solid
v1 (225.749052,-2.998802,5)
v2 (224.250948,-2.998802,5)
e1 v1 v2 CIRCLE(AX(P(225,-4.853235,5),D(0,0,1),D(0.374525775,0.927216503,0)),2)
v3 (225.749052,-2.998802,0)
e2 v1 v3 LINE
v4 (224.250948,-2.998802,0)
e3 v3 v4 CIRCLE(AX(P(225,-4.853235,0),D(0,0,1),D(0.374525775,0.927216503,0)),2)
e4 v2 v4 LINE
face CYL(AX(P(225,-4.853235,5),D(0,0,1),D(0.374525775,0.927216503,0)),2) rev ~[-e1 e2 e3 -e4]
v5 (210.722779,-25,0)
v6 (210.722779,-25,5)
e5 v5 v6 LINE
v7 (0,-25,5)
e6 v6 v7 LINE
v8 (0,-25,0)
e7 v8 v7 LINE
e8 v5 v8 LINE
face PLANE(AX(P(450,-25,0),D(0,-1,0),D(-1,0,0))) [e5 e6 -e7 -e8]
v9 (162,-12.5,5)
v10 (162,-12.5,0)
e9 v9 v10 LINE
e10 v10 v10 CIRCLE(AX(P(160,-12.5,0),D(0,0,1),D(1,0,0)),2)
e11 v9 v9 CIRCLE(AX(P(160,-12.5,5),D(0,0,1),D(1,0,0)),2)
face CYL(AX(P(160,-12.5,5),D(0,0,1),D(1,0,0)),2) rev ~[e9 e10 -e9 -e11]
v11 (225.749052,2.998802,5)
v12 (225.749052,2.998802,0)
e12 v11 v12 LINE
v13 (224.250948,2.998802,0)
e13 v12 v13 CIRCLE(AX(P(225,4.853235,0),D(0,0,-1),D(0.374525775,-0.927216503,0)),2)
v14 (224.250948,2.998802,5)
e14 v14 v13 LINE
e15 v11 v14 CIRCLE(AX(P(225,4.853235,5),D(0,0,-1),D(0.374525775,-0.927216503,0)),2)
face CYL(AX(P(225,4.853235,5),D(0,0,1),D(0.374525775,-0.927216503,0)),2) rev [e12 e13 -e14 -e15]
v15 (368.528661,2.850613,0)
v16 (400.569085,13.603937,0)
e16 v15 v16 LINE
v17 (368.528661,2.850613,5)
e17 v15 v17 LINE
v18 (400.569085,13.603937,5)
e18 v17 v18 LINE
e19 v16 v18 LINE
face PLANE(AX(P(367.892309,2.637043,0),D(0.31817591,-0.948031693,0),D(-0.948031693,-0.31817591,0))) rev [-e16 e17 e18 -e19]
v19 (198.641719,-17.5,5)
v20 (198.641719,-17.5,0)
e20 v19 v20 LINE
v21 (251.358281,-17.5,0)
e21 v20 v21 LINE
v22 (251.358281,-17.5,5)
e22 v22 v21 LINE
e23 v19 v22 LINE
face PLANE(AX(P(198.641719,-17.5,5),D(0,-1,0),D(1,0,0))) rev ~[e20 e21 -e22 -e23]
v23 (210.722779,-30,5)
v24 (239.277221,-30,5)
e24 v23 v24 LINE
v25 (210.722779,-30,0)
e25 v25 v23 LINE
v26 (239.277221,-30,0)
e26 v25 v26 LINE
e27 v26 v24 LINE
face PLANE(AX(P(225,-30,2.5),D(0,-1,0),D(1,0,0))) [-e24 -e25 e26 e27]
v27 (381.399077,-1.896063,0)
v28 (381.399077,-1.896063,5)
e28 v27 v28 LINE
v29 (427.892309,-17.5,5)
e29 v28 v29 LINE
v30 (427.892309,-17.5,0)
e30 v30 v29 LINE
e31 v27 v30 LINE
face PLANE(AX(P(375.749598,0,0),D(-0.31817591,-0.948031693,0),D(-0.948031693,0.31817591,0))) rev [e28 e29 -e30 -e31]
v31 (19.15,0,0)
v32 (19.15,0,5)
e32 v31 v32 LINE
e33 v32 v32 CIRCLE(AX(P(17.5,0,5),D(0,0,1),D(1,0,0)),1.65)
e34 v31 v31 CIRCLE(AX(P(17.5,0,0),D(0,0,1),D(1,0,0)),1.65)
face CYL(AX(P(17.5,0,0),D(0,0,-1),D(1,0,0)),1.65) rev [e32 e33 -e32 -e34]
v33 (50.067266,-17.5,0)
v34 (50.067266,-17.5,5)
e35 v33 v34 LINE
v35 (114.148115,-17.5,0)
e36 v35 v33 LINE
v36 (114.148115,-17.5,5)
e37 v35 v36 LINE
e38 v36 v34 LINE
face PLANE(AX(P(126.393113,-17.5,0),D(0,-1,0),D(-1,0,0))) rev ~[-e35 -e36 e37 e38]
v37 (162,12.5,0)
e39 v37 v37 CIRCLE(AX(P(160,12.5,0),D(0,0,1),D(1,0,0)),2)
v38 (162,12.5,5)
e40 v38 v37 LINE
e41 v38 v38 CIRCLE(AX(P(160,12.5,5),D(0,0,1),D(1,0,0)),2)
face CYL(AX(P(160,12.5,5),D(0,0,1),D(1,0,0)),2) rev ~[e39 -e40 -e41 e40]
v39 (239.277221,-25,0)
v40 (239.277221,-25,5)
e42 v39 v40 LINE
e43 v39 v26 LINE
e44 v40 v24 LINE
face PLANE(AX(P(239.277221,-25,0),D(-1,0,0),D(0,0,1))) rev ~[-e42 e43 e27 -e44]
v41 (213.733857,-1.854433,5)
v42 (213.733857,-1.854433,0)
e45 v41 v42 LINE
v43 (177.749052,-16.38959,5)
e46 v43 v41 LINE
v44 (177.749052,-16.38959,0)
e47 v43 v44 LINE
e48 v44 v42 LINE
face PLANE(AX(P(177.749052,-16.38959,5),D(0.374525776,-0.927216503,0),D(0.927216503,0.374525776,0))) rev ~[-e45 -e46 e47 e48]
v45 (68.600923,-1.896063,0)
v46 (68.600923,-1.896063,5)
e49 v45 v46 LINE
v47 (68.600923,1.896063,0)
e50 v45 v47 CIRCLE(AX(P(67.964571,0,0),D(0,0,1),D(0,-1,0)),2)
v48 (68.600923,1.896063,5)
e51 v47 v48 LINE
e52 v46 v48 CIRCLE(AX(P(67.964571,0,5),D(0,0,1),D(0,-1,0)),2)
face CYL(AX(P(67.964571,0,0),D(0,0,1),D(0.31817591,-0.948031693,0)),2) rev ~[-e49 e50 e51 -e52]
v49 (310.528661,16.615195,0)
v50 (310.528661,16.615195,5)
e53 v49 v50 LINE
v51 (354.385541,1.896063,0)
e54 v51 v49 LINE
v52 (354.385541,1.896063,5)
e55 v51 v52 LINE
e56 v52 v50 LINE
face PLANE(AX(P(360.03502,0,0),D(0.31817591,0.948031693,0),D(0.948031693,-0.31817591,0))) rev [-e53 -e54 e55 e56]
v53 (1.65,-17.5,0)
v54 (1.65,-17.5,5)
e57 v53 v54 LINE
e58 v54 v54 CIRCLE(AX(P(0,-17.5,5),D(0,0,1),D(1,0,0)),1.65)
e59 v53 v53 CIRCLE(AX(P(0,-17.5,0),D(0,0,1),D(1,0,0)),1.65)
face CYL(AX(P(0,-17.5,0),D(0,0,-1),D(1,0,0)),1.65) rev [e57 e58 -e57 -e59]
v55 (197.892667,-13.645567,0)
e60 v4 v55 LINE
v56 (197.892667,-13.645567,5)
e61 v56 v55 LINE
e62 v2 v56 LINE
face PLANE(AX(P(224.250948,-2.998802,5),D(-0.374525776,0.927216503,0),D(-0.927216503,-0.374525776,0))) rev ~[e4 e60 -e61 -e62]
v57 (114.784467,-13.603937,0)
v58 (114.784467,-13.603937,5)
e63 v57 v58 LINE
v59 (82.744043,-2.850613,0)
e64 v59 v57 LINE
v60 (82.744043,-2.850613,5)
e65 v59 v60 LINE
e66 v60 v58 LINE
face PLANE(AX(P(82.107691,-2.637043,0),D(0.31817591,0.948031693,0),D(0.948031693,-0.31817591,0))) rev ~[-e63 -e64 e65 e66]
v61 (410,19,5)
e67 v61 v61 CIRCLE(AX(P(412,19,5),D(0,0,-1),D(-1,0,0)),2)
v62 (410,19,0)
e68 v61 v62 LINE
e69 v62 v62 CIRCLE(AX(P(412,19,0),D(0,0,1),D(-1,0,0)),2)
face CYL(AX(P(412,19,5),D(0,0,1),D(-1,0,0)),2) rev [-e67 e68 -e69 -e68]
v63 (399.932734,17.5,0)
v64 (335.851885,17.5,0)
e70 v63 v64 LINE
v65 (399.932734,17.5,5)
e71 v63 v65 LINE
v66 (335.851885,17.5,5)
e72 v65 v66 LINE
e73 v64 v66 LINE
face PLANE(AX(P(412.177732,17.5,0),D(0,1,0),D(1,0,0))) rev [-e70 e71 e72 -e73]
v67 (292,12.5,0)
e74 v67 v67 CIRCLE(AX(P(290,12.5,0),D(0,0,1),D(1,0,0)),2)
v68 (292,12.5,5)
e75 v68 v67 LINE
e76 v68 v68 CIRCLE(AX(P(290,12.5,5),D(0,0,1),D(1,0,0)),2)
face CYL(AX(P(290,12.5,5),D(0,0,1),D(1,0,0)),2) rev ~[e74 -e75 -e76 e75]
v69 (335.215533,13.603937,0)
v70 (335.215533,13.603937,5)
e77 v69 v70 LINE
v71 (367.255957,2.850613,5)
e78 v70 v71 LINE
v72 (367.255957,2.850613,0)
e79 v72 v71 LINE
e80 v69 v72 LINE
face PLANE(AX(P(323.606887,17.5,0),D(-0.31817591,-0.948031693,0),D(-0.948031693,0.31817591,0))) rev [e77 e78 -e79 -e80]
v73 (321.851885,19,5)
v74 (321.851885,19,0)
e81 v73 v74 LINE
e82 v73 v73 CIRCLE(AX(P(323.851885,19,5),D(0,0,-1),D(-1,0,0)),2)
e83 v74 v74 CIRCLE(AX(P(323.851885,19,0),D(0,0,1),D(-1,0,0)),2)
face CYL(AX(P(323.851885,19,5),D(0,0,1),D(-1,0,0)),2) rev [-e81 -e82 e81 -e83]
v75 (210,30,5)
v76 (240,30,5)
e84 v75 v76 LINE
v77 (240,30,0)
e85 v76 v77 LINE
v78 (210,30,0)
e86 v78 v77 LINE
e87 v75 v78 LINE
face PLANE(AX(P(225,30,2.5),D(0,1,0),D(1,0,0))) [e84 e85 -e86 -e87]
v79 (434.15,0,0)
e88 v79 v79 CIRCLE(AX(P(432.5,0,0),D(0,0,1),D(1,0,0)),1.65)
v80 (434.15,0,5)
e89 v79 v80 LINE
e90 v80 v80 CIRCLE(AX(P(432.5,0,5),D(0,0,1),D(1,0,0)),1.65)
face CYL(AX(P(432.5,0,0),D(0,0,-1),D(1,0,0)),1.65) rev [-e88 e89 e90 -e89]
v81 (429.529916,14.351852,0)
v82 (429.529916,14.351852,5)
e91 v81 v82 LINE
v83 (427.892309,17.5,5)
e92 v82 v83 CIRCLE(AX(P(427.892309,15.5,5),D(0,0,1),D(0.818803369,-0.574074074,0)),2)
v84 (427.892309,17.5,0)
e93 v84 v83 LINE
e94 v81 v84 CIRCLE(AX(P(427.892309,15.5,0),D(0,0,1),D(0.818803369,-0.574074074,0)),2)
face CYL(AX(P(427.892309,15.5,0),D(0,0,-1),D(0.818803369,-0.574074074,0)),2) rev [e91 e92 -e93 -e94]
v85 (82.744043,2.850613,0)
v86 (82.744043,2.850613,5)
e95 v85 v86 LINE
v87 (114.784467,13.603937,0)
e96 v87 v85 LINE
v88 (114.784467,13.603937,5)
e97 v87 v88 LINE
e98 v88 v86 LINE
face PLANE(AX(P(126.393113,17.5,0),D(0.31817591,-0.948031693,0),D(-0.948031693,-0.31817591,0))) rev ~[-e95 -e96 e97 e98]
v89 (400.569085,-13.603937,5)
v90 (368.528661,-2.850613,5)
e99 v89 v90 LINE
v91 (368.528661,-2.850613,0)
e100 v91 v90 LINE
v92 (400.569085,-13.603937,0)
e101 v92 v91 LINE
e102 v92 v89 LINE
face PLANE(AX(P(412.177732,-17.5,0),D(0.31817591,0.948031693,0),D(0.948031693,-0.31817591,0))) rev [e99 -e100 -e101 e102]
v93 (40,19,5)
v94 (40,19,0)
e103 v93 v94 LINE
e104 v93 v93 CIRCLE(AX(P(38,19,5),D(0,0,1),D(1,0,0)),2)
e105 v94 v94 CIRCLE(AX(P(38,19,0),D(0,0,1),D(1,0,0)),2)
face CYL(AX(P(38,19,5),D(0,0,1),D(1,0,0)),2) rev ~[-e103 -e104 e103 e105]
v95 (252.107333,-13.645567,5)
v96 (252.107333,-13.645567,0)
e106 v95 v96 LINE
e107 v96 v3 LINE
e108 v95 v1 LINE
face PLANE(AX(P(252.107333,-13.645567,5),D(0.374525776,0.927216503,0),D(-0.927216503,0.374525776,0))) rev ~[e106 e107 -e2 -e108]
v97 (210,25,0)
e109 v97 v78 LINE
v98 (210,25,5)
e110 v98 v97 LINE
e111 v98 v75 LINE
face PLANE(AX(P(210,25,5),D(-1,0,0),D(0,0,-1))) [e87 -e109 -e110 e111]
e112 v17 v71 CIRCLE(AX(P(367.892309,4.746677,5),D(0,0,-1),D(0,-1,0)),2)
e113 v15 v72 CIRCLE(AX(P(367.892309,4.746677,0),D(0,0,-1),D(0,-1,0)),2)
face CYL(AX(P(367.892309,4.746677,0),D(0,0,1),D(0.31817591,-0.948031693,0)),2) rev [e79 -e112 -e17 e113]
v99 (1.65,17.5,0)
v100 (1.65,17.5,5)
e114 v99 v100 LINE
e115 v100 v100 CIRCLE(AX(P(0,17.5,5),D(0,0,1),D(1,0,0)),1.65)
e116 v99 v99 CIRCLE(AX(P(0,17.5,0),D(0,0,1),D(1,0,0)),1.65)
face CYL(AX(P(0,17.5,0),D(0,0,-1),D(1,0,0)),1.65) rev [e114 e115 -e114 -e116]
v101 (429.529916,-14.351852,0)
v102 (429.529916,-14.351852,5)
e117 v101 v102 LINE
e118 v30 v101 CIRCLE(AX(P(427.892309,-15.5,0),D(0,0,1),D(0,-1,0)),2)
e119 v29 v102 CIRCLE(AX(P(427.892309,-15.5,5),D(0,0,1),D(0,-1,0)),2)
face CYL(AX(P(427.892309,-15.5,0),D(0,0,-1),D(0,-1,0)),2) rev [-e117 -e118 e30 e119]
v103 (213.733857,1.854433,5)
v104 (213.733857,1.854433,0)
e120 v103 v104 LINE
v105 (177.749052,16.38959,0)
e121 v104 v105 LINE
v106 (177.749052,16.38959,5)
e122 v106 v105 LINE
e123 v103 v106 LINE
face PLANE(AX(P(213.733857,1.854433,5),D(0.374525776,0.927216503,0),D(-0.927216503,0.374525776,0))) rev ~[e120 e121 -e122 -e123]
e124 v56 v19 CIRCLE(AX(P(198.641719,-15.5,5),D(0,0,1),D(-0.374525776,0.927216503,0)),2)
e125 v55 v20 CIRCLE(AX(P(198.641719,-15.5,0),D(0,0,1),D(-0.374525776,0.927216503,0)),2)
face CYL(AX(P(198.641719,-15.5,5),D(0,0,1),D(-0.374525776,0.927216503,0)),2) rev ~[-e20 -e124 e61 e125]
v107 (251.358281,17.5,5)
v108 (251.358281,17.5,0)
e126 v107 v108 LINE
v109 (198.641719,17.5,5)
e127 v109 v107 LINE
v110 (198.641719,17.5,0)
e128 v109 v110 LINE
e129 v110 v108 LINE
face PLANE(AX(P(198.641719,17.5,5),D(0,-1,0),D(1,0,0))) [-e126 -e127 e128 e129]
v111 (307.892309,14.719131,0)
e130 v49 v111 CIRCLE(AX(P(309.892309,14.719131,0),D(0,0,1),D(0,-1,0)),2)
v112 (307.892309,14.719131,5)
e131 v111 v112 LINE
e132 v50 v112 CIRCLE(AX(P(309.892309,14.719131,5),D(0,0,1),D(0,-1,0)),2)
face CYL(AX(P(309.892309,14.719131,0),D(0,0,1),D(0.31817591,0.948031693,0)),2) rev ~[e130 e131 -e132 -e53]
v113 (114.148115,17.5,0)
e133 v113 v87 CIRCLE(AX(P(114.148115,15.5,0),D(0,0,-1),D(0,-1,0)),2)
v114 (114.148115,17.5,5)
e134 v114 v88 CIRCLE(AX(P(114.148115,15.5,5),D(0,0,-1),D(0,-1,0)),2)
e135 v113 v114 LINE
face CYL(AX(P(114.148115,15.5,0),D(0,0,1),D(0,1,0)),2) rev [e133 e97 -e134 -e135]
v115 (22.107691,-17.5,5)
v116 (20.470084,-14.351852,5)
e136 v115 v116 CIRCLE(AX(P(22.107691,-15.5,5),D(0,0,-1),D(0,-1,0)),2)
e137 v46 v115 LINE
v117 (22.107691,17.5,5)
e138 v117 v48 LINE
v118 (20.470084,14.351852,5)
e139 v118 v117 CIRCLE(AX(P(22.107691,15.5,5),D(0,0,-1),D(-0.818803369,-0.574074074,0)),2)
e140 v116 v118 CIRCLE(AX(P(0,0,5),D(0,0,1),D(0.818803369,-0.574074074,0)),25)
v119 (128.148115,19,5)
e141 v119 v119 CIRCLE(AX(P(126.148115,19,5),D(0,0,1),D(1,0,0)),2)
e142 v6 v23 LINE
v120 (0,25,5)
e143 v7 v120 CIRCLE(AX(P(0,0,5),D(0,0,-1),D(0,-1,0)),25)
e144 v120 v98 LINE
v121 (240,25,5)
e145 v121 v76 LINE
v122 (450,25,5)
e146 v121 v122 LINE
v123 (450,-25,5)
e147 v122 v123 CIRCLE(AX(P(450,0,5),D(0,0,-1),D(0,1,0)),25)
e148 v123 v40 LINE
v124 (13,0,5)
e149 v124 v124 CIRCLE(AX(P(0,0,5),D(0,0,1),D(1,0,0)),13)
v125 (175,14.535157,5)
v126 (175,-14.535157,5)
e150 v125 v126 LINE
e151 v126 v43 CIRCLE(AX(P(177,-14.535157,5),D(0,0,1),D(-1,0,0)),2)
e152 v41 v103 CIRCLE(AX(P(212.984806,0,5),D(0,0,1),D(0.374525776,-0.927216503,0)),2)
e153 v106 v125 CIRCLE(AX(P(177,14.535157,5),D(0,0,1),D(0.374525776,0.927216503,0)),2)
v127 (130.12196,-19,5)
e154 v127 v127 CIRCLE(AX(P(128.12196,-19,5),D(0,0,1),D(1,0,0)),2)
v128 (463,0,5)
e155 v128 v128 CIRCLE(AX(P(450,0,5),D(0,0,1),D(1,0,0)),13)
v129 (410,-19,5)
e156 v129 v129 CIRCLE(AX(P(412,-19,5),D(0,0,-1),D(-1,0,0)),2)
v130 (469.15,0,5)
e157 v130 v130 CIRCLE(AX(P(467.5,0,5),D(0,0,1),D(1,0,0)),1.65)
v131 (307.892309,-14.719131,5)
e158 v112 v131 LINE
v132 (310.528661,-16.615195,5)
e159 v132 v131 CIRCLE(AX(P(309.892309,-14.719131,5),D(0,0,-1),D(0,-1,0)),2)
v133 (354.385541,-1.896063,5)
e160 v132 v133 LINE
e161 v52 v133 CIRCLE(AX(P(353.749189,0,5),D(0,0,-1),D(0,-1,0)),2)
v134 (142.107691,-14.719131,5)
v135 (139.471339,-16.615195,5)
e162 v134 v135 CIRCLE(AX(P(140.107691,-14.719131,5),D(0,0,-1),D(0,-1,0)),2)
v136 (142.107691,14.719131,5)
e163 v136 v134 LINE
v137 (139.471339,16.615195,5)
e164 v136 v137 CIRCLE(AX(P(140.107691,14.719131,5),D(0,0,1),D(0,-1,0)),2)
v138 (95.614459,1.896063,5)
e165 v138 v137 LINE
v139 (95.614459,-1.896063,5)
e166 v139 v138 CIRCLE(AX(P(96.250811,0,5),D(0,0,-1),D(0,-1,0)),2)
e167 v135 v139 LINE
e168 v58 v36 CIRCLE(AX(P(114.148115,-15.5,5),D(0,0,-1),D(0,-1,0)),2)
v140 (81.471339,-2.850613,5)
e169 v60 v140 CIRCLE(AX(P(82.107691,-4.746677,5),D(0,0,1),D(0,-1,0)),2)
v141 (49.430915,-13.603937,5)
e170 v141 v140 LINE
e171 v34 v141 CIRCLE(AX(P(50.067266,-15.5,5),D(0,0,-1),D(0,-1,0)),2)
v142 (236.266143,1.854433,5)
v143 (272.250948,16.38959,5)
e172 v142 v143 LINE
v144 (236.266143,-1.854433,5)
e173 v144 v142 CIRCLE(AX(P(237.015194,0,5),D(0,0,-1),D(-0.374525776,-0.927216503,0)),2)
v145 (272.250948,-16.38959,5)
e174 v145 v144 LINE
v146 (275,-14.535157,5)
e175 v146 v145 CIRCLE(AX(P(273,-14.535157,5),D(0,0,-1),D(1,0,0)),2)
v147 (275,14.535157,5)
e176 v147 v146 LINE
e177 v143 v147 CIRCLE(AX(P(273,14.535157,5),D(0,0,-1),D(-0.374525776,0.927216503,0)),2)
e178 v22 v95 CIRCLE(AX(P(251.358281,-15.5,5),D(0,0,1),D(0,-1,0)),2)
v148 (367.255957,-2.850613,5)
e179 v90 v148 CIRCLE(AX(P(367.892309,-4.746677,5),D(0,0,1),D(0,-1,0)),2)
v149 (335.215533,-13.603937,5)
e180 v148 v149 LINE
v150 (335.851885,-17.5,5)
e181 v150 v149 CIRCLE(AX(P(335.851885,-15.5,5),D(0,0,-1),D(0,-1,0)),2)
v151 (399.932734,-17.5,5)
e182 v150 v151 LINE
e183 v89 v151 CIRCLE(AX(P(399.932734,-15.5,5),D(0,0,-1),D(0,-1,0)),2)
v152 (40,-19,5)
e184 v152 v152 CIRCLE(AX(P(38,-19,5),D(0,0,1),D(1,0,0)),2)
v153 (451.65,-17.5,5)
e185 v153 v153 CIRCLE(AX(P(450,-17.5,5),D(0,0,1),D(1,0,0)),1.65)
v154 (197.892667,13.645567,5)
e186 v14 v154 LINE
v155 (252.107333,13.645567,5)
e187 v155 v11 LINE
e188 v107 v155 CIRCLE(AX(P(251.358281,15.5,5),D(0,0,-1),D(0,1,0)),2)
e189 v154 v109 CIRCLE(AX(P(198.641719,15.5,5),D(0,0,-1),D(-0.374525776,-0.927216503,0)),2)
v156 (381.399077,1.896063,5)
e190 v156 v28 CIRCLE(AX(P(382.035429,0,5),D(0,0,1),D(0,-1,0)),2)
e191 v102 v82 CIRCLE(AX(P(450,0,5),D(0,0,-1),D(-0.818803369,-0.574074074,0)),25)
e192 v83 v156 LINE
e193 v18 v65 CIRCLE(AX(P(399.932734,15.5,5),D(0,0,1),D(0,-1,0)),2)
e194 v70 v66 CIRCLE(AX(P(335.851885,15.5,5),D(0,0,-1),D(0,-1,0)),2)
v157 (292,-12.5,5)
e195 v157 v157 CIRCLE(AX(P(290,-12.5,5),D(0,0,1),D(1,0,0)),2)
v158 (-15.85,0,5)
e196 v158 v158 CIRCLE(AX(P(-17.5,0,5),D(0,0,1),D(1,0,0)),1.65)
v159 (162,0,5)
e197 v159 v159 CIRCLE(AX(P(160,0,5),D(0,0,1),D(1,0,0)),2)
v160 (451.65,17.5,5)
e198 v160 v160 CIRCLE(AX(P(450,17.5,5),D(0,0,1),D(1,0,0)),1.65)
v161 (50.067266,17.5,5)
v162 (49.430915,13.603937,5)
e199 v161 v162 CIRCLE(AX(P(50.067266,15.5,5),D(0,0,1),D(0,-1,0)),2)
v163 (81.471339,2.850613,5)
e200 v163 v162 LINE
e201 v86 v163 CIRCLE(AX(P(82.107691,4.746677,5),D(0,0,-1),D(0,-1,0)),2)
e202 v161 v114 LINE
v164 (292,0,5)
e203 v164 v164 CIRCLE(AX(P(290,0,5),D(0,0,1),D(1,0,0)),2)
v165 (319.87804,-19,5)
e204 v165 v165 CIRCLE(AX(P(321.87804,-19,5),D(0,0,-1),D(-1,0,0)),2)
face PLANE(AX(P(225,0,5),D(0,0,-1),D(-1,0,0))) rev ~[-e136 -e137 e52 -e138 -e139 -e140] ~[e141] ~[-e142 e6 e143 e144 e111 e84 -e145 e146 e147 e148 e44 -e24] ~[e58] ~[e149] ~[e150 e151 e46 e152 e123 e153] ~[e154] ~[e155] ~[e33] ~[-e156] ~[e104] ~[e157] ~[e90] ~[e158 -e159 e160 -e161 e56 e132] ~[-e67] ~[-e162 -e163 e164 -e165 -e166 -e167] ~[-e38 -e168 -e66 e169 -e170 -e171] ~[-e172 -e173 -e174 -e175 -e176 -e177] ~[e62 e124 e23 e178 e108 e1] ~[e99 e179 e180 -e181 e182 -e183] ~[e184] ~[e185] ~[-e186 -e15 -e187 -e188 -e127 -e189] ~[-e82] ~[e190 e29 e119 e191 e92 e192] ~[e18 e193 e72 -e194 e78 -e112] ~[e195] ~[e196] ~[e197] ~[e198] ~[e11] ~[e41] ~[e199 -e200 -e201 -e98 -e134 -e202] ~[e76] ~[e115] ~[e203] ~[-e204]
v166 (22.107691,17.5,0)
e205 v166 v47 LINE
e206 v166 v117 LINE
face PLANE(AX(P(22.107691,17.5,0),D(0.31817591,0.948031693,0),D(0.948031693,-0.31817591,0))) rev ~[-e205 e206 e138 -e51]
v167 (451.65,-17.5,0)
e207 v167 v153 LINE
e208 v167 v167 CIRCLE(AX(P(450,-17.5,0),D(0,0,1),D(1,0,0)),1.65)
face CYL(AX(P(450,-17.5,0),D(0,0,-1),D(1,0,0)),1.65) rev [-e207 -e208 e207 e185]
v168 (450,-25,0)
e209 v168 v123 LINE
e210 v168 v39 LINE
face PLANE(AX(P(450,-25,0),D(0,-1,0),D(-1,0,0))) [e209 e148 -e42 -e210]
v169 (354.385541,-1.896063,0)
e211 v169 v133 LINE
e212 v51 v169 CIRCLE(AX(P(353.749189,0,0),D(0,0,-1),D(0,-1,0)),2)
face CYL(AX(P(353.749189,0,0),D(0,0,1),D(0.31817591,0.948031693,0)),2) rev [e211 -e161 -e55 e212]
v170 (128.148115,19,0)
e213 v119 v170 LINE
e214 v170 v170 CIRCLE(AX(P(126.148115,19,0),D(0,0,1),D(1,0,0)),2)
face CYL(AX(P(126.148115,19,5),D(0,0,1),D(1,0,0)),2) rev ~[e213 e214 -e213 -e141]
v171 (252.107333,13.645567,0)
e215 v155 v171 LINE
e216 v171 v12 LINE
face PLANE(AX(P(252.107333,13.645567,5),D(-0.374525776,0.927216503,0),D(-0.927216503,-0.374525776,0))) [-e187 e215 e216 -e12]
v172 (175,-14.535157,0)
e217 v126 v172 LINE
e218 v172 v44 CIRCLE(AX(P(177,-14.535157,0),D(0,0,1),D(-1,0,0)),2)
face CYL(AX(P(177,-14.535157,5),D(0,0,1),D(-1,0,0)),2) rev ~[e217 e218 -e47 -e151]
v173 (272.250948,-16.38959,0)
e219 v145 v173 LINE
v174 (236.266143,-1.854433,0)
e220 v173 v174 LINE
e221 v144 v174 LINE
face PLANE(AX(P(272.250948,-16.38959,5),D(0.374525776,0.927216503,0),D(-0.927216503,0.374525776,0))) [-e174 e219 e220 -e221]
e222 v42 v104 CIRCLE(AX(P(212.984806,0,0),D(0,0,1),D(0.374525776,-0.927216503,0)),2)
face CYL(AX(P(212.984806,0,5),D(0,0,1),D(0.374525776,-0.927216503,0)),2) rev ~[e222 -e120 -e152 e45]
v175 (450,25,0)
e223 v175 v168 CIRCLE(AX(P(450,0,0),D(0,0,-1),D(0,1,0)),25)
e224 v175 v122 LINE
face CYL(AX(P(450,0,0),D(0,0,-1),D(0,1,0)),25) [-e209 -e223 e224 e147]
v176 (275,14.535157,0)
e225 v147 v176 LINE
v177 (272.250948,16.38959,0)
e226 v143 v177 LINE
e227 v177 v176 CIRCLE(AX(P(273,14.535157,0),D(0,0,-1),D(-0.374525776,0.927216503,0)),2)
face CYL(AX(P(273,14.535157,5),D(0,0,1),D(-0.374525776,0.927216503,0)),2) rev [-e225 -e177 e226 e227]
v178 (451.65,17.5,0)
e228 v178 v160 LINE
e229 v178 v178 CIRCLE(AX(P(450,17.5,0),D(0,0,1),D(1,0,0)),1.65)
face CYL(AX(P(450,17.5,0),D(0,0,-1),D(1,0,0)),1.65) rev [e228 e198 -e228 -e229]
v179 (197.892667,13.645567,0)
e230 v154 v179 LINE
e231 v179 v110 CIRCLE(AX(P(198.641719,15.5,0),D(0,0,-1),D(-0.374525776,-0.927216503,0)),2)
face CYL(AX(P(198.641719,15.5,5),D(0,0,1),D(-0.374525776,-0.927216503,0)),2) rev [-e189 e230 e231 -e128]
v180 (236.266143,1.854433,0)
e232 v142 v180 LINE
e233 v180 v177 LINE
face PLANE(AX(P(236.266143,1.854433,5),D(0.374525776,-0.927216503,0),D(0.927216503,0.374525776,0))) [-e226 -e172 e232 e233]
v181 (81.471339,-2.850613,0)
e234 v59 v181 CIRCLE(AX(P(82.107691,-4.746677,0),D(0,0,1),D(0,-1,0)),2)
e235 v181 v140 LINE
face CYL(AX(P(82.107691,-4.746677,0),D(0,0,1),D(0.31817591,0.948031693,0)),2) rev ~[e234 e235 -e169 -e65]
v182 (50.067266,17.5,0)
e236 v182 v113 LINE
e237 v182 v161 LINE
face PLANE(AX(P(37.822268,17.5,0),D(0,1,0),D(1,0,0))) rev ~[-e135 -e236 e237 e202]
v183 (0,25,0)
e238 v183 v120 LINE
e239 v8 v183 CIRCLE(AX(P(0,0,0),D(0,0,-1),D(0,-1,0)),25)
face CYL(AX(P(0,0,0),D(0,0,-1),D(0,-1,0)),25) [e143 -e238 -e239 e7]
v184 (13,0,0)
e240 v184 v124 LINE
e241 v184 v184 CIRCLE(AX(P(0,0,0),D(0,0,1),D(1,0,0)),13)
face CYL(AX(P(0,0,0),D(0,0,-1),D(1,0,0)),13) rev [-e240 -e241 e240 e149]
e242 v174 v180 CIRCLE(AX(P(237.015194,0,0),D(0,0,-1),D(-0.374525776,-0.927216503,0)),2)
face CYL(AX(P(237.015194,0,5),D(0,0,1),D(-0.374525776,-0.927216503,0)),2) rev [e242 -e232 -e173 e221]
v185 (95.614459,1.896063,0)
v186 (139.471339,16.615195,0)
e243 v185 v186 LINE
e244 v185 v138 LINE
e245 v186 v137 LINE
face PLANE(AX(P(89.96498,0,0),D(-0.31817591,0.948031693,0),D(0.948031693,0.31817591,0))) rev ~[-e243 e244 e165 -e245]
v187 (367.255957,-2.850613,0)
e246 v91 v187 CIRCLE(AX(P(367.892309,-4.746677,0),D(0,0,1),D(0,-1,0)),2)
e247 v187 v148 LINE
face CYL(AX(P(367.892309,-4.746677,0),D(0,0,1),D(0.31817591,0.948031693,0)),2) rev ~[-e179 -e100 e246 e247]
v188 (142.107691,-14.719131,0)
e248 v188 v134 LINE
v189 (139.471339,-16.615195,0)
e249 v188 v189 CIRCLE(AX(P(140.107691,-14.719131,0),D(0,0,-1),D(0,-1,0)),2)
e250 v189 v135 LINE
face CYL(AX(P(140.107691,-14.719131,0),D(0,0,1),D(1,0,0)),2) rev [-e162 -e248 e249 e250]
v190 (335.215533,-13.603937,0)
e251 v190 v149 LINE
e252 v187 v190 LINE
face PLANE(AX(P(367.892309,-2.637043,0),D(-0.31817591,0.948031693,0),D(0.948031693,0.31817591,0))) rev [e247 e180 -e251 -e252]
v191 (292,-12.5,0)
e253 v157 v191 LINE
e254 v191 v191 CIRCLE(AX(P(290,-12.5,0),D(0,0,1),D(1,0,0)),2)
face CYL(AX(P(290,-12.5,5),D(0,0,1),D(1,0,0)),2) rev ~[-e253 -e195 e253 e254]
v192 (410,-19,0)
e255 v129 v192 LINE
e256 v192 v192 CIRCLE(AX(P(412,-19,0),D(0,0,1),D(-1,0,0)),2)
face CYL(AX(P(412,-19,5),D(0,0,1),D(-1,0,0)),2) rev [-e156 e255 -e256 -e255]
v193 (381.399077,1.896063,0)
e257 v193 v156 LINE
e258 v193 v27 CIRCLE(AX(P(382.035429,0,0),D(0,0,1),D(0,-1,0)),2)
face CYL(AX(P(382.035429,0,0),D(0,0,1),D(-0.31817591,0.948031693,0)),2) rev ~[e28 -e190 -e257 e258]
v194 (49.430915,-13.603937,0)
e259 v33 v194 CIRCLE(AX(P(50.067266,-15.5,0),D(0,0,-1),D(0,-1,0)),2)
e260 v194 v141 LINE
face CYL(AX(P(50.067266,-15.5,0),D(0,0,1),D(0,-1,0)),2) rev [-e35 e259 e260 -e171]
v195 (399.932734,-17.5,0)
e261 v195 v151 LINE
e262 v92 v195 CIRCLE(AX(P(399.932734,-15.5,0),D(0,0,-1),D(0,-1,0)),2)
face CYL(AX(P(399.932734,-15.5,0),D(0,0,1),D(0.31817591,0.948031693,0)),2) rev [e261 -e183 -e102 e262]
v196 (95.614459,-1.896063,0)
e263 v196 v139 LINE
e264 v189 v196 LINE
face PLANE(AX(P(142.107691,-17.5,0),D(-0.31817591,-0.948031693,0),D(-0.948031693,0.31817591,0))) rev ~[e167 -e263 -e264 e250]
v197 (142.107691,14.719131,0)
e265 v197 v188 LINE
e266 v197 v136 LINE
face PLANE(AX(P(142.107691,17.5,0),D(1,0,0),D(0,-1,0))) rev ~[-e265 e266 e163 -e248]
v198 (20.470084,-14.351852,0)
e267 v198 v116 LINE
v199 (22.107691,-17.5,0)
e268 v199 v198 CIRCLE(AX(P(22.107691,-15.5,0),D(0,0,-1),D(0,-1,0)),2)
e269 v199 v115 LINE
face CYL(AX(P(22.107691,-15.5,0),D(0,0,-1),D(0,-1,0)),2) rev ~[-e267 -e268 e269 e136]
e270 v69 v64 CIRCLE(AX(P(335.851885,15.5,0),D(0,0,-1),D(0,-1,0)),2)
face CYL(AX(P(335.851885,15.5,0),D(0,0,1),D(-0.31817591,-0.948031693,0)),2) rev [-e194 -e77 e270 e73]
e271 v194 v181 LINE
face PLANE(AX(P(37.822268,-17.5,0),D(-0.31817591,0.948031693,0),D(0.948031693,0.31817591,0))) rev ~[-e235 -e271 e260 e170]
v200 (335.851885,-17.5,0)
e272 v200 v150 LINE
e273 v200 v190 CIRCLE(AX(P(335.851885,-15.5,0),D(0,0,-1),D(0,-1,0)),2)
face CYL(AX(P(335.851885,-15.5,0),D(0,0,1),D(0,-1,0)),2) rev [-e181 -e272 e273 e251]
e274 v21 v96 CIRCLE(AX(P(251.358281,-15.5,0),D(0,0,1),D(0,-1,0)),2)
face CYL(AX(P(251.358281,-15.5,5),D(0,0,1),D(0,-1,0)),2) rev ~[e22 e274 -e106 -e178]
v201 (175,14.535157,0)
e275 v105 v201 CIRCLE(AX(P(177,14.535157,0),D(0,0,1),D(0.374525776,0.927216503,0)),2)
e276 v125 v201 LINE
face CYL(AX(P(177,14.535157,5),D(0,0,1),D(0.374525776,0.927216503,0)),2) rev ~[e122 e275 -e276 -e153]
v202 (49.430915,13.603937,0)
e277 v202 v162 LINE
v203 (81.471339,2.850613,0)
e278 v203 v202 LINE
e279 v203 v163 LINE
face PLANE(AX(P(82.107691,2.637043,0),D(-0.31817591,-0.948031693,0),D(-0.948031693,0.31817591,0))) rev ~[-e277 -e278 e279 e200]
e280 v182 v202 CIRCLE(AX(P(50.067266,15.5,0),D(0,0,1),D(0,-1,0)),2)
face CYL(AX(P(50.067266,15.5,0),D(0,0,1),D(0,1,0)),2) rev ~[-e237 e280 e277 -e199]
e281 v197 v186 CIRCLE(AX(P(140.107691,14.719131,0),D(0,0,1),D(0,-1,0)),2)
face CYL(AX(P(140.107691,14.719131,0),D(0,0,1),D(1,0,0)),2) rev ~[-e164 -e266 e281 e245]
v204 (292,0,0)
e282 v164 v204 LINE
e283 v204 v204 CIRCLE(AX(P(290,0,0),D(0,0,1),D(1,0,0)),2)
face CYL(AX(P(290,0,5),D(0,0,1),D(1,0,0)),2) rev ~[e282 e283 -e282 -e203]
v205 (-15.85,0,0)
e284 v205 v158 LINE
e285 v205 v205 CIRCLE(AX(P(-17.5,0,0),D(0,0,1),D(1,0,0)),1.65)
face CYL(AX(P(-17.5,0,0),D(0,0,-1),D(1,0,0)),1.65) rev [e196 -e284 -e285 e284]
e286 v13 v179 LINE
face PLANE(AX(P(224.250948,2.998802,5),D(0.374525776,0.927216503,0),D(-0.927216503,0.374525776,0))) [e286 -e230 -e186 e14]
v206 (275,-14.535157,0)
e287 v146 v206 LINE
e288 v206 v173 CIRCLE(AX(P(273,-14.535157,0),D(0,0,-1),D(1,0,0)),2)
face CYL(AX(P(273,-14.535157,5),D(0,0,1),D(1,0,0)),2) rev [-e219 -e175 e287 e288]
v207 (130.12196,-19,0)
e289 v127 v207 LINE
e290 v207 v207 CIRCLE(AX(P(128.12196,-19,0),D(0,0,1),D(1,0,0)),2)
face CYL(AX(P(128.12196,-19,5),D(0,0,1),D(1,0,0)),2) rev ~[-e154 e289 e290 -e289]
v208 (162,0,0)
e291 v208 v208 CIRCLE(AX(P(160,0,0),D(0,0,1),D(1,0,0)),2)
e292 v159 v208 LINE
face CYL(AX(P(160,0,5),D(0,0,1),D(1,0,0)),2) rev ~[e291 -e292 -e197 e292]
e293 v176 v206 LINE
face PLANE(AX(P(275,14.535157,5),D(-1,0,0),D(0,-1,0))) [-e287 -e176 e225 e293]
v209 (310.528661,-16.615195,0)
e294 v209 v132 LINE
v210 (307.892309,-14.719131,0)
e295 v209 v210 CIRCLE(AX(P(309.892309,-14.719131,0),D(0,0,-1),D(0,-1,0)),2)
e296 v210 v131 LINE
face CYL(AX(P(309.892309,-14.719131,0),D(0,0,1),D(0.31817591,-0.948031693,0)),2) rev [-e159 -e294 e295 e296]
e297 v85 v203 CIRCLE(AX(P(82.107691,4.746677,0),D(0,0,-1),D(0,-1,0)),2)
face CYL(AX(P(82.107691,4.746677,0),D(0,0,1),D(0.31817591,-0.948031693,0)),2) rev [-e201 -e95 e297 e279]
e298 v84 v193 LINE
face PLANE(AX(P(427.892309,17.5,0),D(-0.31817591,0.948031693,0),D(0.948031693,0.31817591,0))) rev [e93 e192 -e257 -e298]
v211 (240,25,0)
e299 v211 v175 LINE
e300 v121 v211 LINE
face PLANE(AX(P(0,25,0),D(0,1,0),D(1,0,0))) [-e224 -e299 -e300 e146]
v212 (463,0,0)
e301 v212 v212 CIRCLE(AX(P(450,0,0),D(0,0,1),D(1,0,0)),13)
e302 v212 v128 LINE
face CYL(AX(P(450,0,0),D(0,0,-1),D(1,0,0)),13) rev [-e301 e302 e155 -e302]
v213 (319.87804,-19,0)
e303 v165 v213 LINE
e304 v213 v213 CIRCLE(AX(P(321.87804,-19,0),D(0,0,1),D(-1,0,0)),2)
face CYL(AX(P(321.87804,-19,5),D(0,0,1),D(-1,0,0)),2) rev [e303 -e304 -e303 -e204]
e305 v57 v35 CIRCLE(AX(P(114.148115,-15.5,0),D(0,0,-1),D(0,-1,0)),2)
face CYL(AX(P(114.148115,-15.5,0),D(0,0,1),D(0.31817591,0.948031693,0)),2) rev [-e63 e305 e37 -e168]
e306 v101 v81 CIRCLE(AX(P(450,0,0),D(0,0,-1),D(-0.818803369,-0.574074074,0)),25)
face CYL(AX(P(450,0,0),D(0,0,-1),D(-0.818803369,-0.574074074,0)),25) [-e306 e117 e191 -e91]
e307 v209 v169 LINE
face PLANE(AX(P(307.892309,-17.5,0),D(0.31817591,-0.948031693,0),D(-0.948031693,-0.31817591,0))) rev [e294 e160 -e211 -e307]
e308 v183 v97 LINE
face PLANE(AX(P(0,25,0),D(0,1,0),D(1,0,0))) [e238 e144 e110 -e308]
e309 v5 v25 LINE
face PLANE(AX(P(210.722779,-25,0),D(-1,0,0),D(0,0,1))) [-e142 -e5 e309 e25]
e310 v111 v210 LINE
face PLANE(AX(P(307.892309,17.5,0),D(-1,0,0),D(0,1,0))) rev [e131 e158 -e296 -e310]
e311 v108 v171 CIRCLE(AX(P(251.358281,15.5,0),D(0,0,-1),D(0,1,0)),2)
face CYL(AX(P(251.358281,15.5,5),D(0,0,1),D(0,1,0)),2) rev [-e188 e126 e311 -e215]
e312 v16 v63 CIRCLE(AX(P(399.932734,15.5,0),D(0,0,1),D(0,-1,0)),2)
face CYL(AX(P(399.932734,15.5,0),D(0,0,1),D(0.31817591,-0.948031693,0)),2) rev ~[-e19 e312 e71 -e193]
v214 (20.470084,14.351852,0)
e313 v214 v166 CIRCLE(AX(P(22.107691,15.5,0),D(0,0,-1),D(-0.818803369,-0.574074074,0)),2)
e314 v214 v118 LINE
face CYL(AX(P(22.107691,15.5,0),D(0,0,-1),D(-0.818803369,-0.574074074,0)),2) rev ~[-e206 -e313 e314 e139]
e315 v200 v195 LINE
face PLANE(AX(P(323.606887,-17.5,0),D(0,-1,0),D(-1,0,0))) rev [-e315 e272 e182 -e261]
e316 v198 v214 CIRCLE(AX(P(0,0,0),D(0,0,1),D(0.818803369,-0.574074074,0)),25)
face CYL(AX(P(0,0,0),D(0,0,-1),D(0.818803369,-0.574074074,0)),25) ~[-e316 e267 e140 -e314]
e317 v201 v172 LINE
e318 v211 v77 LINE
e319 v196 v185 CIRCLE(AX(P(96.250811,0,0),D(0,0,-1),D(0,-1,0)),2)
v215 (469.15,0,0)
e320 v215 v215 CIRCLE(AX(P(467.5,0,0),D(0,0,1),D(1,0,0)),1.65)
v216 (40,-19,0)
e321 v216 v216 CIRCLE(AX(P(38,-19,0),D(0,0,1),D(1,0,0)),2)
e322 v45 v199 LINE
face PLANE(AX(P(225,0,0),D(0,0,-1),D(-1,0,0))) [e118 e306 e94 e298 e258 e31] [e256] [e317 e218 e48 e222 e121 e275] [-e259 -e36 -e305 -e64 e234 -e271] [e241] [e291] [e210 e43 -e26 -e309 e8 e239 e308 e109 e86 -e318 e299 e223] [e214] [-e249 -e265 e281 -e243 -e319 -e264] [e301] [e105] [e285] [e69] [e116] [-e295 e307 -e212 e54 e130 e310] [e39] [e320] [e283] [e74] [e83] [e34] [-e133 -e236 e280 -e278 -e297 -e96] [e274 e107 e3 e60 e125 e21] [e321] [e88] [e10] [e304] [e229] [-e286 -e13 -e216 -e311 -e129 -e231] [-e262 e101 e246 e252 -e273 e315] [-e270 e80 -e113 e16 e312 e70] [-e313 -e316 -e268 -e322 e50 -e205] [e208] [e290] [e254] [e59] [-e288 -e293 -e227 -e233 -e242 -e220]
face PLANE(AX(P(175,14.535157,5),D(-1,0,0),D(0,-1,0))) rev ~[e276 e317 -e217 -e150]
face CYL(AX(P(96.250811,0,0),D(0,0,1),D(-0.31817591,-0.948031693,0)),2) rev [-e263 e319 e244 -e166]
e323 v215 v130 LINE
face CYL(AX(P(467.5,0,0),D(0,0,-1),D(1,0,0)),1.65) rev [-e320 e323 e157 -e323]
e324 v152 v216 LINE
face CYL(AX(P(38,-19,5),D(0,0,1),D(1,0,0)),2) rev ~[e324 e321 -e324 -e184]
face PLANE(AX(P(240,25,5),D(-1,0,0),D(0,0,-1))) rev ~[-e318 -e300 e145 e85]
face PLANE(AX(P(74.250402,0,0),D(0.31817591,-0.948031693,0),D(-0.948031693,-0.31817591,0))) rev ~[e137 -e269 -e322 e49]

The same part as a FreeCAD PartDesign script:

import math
import FreeCAD as App
import Part
import Sketcher
Q = App.Units.Quantity


def edges_at(feature, points):
    """Names of the edges that pass closest to the given points."""
    edges = feature.Shape.Edges
    near = lambda p: min(range(len(edges)), key=lambda i: edges[i].distToShape(Part.Vertex(*p))[0])
    return sorted({f"Edge{near(p) + 1}" for p in points})


def add_polygon(sketch, points):
    """Adds a closed chain of lines whose ends are joined by coincident constraints."""
    first, n = sketch.GeometryCount, len(points)
    for a, b in zip(points, points[1:] + points[:1]):
        sketch.addGeometry(Part.LineSegment(App.Vector(*a, 0), App.Vector(*b, 0)), False)
    for i in range(n):
        sketch.addConstraint(Sketcher.Constraint("Coincident", first + i, 2, first + (i + 1) % n, 1))

doc = App.newDocument("Part")
body = doc.addObject("PartDesign::Body", "Body")

sketch1 = body.newObject("Sketcher::SketchObject", "Sketch")
sketch1.AttachmentSupport = (doc.getObject("XY_Plane"), [""])
sketch1.MapMode = "FlatFace"
sketch1.addGeometry([
    Part.LineSegment(App.Vector(450, 25, 0), App.Vector(0, 25, 0)),
    Part.ArcOfCircle(Part.Circle(App.Vector(0, 0, 0), App.Vector(0, 0, 1), 25), math.radians(90), math.radians(270)),
    Part.LineSegment(App.Vector(0, -25, 0), App.Vector(450, -25, 0)),
    Part.ArcOfCircle(Part.Circle(App.Vector(450, 0, 0), App.Vector(0, 0, 1), 25), math.radians(-90), math.radians(90)),
    Part.Circle(App.Vector(450, -17.5, 0), App.Vector(0, 0, 1), 1.65),
    Part.Circle(App.Vector(0, -17.5, 0), App.Vector(0, 0, 1), 1.65),
    Part.Circle(App.Vector(467.5, 0, 0), App.Vector(0, 0, 1), 1.65),
    Part.Circle(App.Vector(450, 0, 0), App.Vector(0, 0, 1), 13),
    Part.Circle(App.Vector(432.5, 0, 0), App.Vector(0, 0, 1), 1.65),
    Part.Circle(App.Vector(450, 17.5, 0), App.Vector(0, 0, 1), 1.65),
    Part.Circle(App.Vector(17.5, 0, 0), App.Vector(0, 0, 1), 1.65),
    Part.Circle(App.Vector(0, 0, 0), App.Vector(0, 0, 1), 13),
    Part.Circle(App.Vector(-17.5, 0, 0), App.Vector(0, 0, 1), 1.65),
    Part.Circle(App.Vector(0, 17.5, 0), App.Vector(0, 0, 1), 1.65),
], False)
sketch1.addConstraint([
    Sketcher.Constraint("Tangent", 0, 2, 1, 1),
    Sketcher.Constraint("Tangent", 1, 2, 2, 1),
    Sketcher.Constraint("Tangent", 2, 2, 3, 1),
    Sketcher.Constraint("Tangent", 3, 2, 0, 1),
    Sketcher.Constraint("Horizontal", 0),
    Sketcher.Constraint("Horizontal", 2),
    Sketcher.Constraint("Coincident", 1, 3, -1, 1),
    Sketcher.Constraint("Coincident", 11, 3, -1, 1),
    Sketcher.Constraint("Coincident", 7, 3, 3, 3),
    Sketcher.Constraint("Equal", 4, 5),
    Sketcher.Constraint("Equal", 5, 6),
    Sketcher.Constraint("Equal", 6, 8),
    Sketcher.Constraint("Equal", 8, 9),
    Sketcher.Constraint("Equal", 9, 10),
    Sketcher.Constraint("Equal", 7, 11),
    Sketcher.Constraint("Equal", 10, 12),
    Sketcher.Constraint("Equal", 12, 13),
    Sketcher.Constraint("Symmetric", 10, 3, 12, 3, -1, 1),
    Sketcher.Constraint("Symmetric", 5, 3, 13, 3, -1, 1),
    Sketcher.Constraint("Symmetric", 4, 3, 9, 3, -1),
    Sketcher.Constraint("PointOnObject", 5, 3, -2),
    Sketcher.Constraint("PointOnObject", 6, 3, -1),
    Sketcher.Constraint("PointOnObject", 8, 3, -1),
    Sketcher.Constraint("PointOnObject", 10, 3, -1),
    Sketcher.Constraint("Horizontal", 4, 3, 5, 3),
    Sketcher.Constraint("Vertical", 3, 3, 4, 3),
    Sketcher.Constraint("Diameter", 7, Q("26 mm")),
    Sketcher.Constraint("Radius", 1, Q("25 mm")),
    Sketcher.Constraint("Diameter", 4, Q("3.3 mm")),
    Sketcher.Constraint("DistanceX", 0, 2, 0, 1, Q("450 mm")),
    Sketcher.Constraint("DistanceX", 8, 3, 6, 3, Q("35 mm")),
    Sketcher.Constraint("DistanceY", 4, 3, 9, 3, Q("35 mm")),
    Sketcher.Constraint("DistanceX", 10, 3, 8, 3, Q("415 mm")),
    Sketcher.Constraint("DistanceX", 12, 3, 10, 3, Q("35 mm")),
])
pad1 = body.newObject("PartDesign::Pad", "Pad")
pad1.Profile = sketch1
pad1.Length = 5

sketch2 = body.newObject("Sketcher::SketchObject", "Sketch001")
sketch2.AttachmentSupport = (doc.getObject("XY_Plane"), [""])
sketch2.MapMode = "FlatFace"
sketch2.AttachmentOffset = App.Placement(App.Vector(0, 0, 5), App.Rotation())
sketch2.addGeometry([
    Part.Circle(App.Vector(290, 12.5, 0), App.Vector(0, 0, 1), 2),
    Part.Circle(App.Vector(290, 0, 0), App.Vector(0, 0, 1), 2),
    Part.Circle(App.Vector(290, -12.5, 0), App.Vector(0, 0, 1), 2),
    Part.Circle(App.Vector(160, 12.5, 0), App.Vector(0, 0, 1), 2),
    Part.Circle(App.Vector(160, 0, 0), App.Vector(0, 0, 1), 2),
    Part.Circle(App.Vector(160, -12.5, 0), App.Vector(0, 0, 1), 2),
], False)
sketch2.addConstraint([
    Sketcher.Constraint("Equal", 0, 1),
    Sketcher.Constraint("Equal", 1, 2),
    Sketcher.Constraint("Equal", 2, 3),
    Sketcher.Constraint("Equal", 3, 4),
    Sketcher.Constraint("Equal", 4, 5),
    Sketcher.Constraint("Symmetric", 0, 3, 2, 3, -1),
    Sketcher.Constraint("Symmetric", 3, 3, 5, 3, -1),
    Sketcher.Constraint("PointOnObject", 1, 3, -1),
    Sketcher.Constraint("PointOnObject", 4, 3, -1),
    Sketcher.Constraint("Horizontal", 0, 3, 3, 3),
    Sketcher.Constraint("Vertical", 0, 3, 1, 3),
    Sketcher.Constraint("Vertical", 3, 3, 4, 3),
    Sketcher.Constraint("Diameter", 0, Q("4 mm")),
    Sketcher.Constraint("DistanceX", -1, 1, 0, 3, Q("290 mm")),
    Sketcher.Constraint("DistanceX", -1, 1, 3, 3, Q("160 mm")),
    Sketcher.Constraint("DistanceY", 2, 3, 0, 3, Q("25 mm")),
])
pocket1 = body.newObject("PartDesign::Pocket", "Pocket")
pocket1.Profile = sketch2
pocket1.Length = 5

sketch3 = body.newObject("Sketcher::SketchObject", "Sketch002")
sketch3.AttachmentSupport = (doc.getObject("XY_Plane"), [""])
sketch3.MapMode = "FlatFace"
sketch3.addGeometry(Part.LineSegment(App.Vector(22.107691, -17.5, 0), App.Vector(74.250402, 0, 0)), False)
sketch3.addGeometry(Part.LineSegment(App.Vector(74.250402, 0, 0), App.Vector(22.107691, 17.5, 0)), False)
sketch3.addGeometry(Part.ArcOfCircle(Part.Circle(App.Vector(22.107691, 15.5, 0), App.Vector(0, 0, 1), 2), math.radians(90), math.radians(215.034815)), False)
sketch3.addGeometry(Part.ArcOfCircle(Part.Circle(App.Vector(0, 0, 0), App.Vector(0, 0, 1), 25), math.radians(-35.034815), math.radians(35.034815)), False)
sketch3.addGeometry(Part.ArcOfCircle(Part.Circle(App.Vector(22.107691, -15.5, 0), App.Vector(0, 0, 1), 2), math.radians(144.965185), math.radians(270)), False)
add_polygon(sketch3, [(126.393113, -17.5), (82.107691, -2.637043), (37.822268, -17.5)])
add_polygon(sketch3, [(126.393113, 17.5), (37.822268, 17.5), (82.107691, 2.637043)])
add_polygon(sketch3, [(142.107691, -17.5), (142.107691, 17.5), (89.96498, 0)])
sketch3.addConstraint([
    Sketcher.Constraint("Coincident", 0, 2, 1, 1),
    Sketcher.Constraint("Coincident", 1, 2, 2, 1),
    Sketcher.Constraint("Tangent", 2, 2, 3, 2),
    Sketcher.Constraint("Tangent", 3, 1, 4, 1),
    Sketcher.Constraint("Coincident", 4, 2, 0, 1),
    Sketcher.Constraint("Horizontal", 7),
    Sketcher.Constraint("Horizontal", 8),
    Sketcher.Constraint("Vertical", 11),
    Sketcher.Constraint("Coincident", 3, 3, -1, 1),
    Sketcher.Constraint("Equal", 2, 4),
    Sketcher.Constraint("Symmetric", 1, 2, 4, 2, -1),
    Sketcher.Constraint("Symmetric", 6, 2, 8, 2, -1),
    Sketcher.Constraint("Symmetric", 5, 2, 9, 2, -1),
    Sketcher.Constraint("PointOnObject", 0, 2, -1),
    Sketcher.Constraint("PointOnObject", 12, 2, -1),
    Sketcher.Constraint("Parallel", 1, 5),
    Sketcher.Constraint("Parallel", 0, 6),
    Sketcher.Constraint("Parallel", 6, 10),
    Sketcher.Constraint("Parallel", 10, 12),
    Sketcher.Constraint("Parallel", 9, 13),
    Sketcher.Constraint("Horizontal", 4, 2, 6, 2),
    Sketcher.Constraint("Horizontal", 10, 2, 11, 2),
    Sketcher.Constraint("Vertical", 4, 3, 1, 2),
    Sketcher.Constraint("Radius", 2, Q("2 mm")),
    Sketcher.Constraint("Radius", 3, Q("25 mm")),
    Sketcher.Constraint("DistanceY", 11, 1, 11, 2, Q("35 mm")),
    Sketcher.Constraint("DistanceX", 4, 3, 5, 2, Q("60 mm")),
    Sketcher.Constraint("DistanceX", 9, 2, 11, 2, Q("60 mm")),
    Sketcher.Constraint("Distance", 0, Q("55.001021 mm")),
    Sketcher.Constraint("Distance", 5, Q("46.713019 mm")),
])
pocket2 = body.newObject("PartDesign::Pocket", "Pocket001")
pocket2.Profile = sketch3
pocket2.Length = 5
pocket2.Reversed = True
doc.recompute()

fillet = body.newObject("PartDesign::Fillet", "Fillet")
fillet.Base = (pocket2, edges_at(pocket2, [(142.108, 17.5, 2.5)]))
fillet.Radius = 2
doc.recompute()

fillet2 = body.newObject("PartDesign::Fillet", "Fillet001")
fillet2.Base = (fillet, edges_at(fillet, [
    (37.822, -17.5, 2.5),
    (82.108, -2.637, 2.5),
    (126.393, -17.5, 2.5),
    (89.965, 0, 2.5),
    (142.108, -17.5, 2.5),
    (126.393, 17.5, 2.5),
    (82.108, 2.637, 2.5),
    (37.822, 17.5, 2.5),
    (74.25, 0, 2.5),
]))
fillet2.Radius = 2
doc.recompute()

datumplane = body.newObject("PartDesign::Plane", "DatumPlane")
datumplane.AttachmentSupport = (doc.getObject("YZ_Plane"), [""])
datumplane.MapMode = "FlatFace"
datumplane.AttachmentOffset = App.Placement(App.Vector(0, 0, 225), App.Rotation())
mirrored = body.newObject("PartDesign::Mirrored", "Mirrored")
mirrored.Originals = [pocket2]
mirrored.MirrorPlane = (datumplane, [""])
body.Tip = mirrored
doc.recompute()

fillet3 = body.newObject("PartDesign::Fillet", "Fillet002")
fillet3.Base = (mirrored, edges_at(mirrored, [
    (375.75, 0, 2.5),
    (367.892, -2.637, 2.5),
    (412.178, -17.5, 2.5),
    (323.607, -17.5, 2.5),
    (307.892, 17.5, 2.5),
    (360.035, 0, 2.5),
    (307.892, -17.5, 2.5),
    (367.892, 2.637, 2.5),
    (323.607, 17.5, 2.5),
    (412.178, 17.5, 2.5),
]))
fillet3.Radius = 2

sketch4 = body.newObject("Sketcher::SketchObject", "Sketch003")
sketch4.AttachmentSupport = (doc.getObject("XY_Plane"), [""])
sketch4.MapMode = "FlatFace"
sketch4.AttachmentOffset = App.Placement(App.Vector(0, 0, 5), App.Rotation())
sketch4.addGeometry([
    Part.LineSegment(App.Vector(251.358281, 17.5, 0), App.Vector(198.641719, 17.5, 0)),
    Part.ArcOfCircle(Part.Circle(App.Vector(198.641719, 15.5, 0), App.Vector(0, 0, 1), 2), math.radians(90), math.radians(248.004994)),
    Part.LineSegment(App.Vector(197.892667, 13.645567, 0), App.Vector(224.250948, 2.998802, 0)),
    Part.ArcOfCircle(Part.Circle(App.Vector(225, 4.853235, 0), App.Vector(0, 0, 1), 2), math.radians(-111.995006), math.radians(-68.004994)),
    Part.LineSegment(App.Vector(225.749052, 2.998802, 0), App.Vector(252.107333, 13.645567, 0)),
    Part.ArcOfCircle(Part.Circle(App.Vector(251.358281, 15.5, 0), App.Vector(0, 0, 1), 2), math.radians(-68.004994), math.radians(90)),
    Part.LineSegment(App.Vector(175, 14.535157, 0), App.Vector(175, -14.535157, 0)),
    Part.ArcOfCircle(Part.Circle(App.Vector(177, -14.535157, 0), App.Vector(0, 0, 1), 2), math.radians(-180), math.radians(-68.004994)),
    Part.LineSegment(App.Vector(177.749052, -16.38959, 0), App.Vector(213.733857, -1.854433, 0)),
    Part.ArcOfCircle(Part.Circle(App.Vector(212.984806, 0, 0), App.Vector(0, 0, 1), 2), math.radians(-68.004994), math.radians(68.004994)),
    Part.LineSegment(App.Vector(213.733857, 1.854433, 0), App.Vector(177.749052, 16.38959, 0)),
    Part.ArcOfCircle(Part.Circle(App.Vector(177, 14.535157, 0), App.Vector(0, 0, 1), 2), math.radians(68.004994), math.radians(180)),
    Part.LineSegment(App.Vector(198.641719, -17.5, 0), App.Vector(251.358281, -17.5, 0)),
    Part.ArcOfCircle(Part.Circle(App.Vector(251.358281, -15.5, 0), App.Vector(0, 0, 1), 2), math.radians(-90), math.radians(68.004994)),
    Part.LineSegment(App.Vector(252.107333, -13.645567, 0), App.Vector(225.749052, -2.998802, 0)),
    Part.ArcOfCircle(Part.Circle(App.Vector(225, -4.853235, 0), App.Vector(0, 0, 1), 2), math.radians(68.004994), math.radians(111.995006)),
    Part.LineSegment(App.Vector(224.250948, -2.998802, 0), App.Vector(197.892667, -13.645567, 0)),
    Part.ArcOfCircle(Part.Circle(App.Vector(198.641719, -15.5, 0), App.Vector(0, 0, 1), 2), math.radians(111.995006), math.radians(270)),
    Part.LineSegment(App.Vector(275, -14.535157, 0), App.Vector(275, 14.535157, 0)),
    Part.ArcOfCircle(Part.Circle(App.Vector(273, 14.535157, 0), App.Vector(0, 0, 1), 2), math.radians(0), math.radians(111.995006)),
    Part.LineSegment(App.Vector(272.250948, 16.38959, 0), App.Vector(236.266143, 1.854433, 0)),
    Part.ArcOfCircle(Part.Circle(App.Vector(237.015194, 0, 0), App.Vector(0, 0, 1), 2), math.radians(111.995006), math.radians(248.004994)),
    Part.LineSegment(App.Vector(236.266143, -1.854433, 0), App.Vector(272.250948, -16.38959, 0)),
    Part.ArcOfCircle(Part.Circle(App.Vector(273, -14.535157, 0), App.Vector(0, 0, 1), 2), math.radians(-111.995006), math.radians(0)),
], False)
sketch4.addConstraint([
    Sketcher.Constraint("Tangent", 0, 2, 1, 1),
    Sketcher.Constraint("Tangent", 1, 2, 2, 1),
    Sketcher.Constraint("Tangent", 2, 2, 3, 1),
    Sketcher.Constraint("Tangent", 3, 2, 4, 1),
    Sketcher.Constraint("Tangent", 4, 2, 5, 1),
    Sketcher.Constraint("Tangent", 5, 2, 0, 1),
    Sketcher.Constraint("Tangent", 6, 2, 7, 1),
    Sketcher.Constraint("Tangent", 7, 2, 8, 1),
    Sketcher.Constraint("Tangent", 8, 2, 9, 1),
    Sketcher.Constraint("Tangent", 9, 2, 10, 1),
    Sketcher.Constraint("Tangent", 10, 2, 11, 1),
    Sketcher.Constraint("Tangent", 11, 2, 6, 1),
    Sketcher.Constraint("Tangent", 12, 2, 13, 1),
    Sketcher.Constraint("Tangent", 13, 2, 14, 1),
    Sketcher.Constraint("Tangent", 14, 2, 15, 1),
    Sketcher.Constraint("Tangent", 15, 2, 16, 1),
    Sketcher.Constraint("Tangent", 16, 2, 17, 1),
    Sketcher.Constraint("Tangent", 17, 2, 12, 1),
    Sketcher.Constraint("Tangent", 18, 2, 19, 1),
    Sketcher.Constraint("Tangent", 19, 2, 20, 1),
    Sketcher.Constraint("Tangent", 20, 2, 21, 1),
    Sketcher.Constraint("Tangent", 21, 2, 22, 1),
    Sketcher.Constraint("Tangent", 22, 2, 23, 1),
    Sketcher.Constraint("Tangent", 23, 2, 18, 1),
    Sketcher.Constraint("Horizontal", 0),
    Sketcher.Constraint("Vertical", 6),
    Sketcher.Constraint("Horizontal", 12),
    Sketcher.Constraint("Vertical", 18),
    Sketcher.Constraint("Equal", 1, 3),
    Sketcher.Constraint("Equal", 3, 5),
    Sketcher.Constraint("Equal", 5, 7),
    Sketcher.Constraint("Equal", 7, 9),
    Sketcher.Constraint("Equal", 9, 11),
    Sketcher.Constraint("Equal", 11, 13),
    Sketcher.Constraint("Equal", 13, 15),
    Sketcher.Constraint("Equal", 15, 17),
    Sketcher.Constraint("Equal", 17, 19),
    Sketcher.Constraint("Equal", 19, 21),
    Sketcher.Constraint("Equal", 21, 23),
    Sketcher.Constraint("Symmetric", 5, 3, 13, 3, -1),
    Sketcher.Constraint("Symmetric", 3, 3, 15, 3, -1),
    Sketcher.Constraint("Symmetric", 8, 2, 9, 2, -1),
    Sketcher.Constraint("Symmetric", 20, 2, 21, 2, -1),
    Sketcher.Constraint("Parallel", 4, 8),
    Sketcher.Constraint("Parallel", 2, 10),
    Sketcher.Constraint("Parallel", 8, 16),
    Sketcher.Constraint("Parallel", 16, 20),
    Sketcher.Constraint("Horizontal", 11, 3, 19, 3),
    Sketcher.Constraint("Radius", 1, Q("2 mm")),
    Sketcher.Constraint("DistanceX", -1, 1, 3, 3, Q("225 mm")),
    Sketcher.Constraint("DistanceX", -1, 1, 7, 3, Q("177 mm")),
    Sketcher.Constraint("DistanceX", -1, 1, 19, 3, Q("273 mm")),
    Sketcher.Constraint("DistanceY", 13, 3, 5, 3, Q("31 mm")),
    Sketcher.Constraint("Distance", 2, Q("28.427321 mm")),
    Sketcher.Constraint("DistanceX", 0, 2, 0, 1, Q("52.716563 mm")),
    Sketcher.Constraint("DistanceY", 6, 2, 6, 1, Q("29.070314 mm")),
])
pocket3 = body.newObject("PartDesign::Pocket", "Pocket002")
pocket3.Profile = sketch4
pocket3.Length = 5

sketch5 = body.newObject("Sketcher::SketchObject", "Sketch004")
sketch5.AttachmentSupport = (doc.getObject("XY_Plane"), [""])
sketch5.MapMode = "FlatFace"
sketch5.AttachmentOffset = App.Placement(App.Vector(0, 0, 5), App.Rotation())
sketch5.addGeometry([
    Part.Circle(App.Vector(38, 19, 0), App.Vector(0, 0, 1), 2),
    Part.Circle(App.Vector(38, -19, 0), App.Vector(0, 0, 1), 2),
], False)
sketch5.addConstraint([
    Sketcher.Constraint("Equal", 0, 1),
    Sketcher.Constraint("Symmetric", 0, 3, 1, 3, -1),
    Sketcher.Constraint("Diameter", 0, Q("4 mm")),
    Sketcher.Constraint("DistanceX", -1, 1, 0, 3, Q("38 mm")),
    Sketcher.Constraint("DistanceY", -1, 1, 0, 3, Q("19 mm")),
])
pocket4 = body.newObject("PartDesign::Pocket", "Pocket003")
pocket4.Profile = sketch5
pocket4.Length = 10
doc.recompute()

datumplane2 = body.newObject("PartDesign::Plane", "DatumPlane001")
datumplane2.AttachmentSupport = (doc.getObject("YZ_Plane"), [""])
datumplane2.MapMode = "FlatFace"
datumplane2.AttachmentOffset = App.Placement(App.Vector(0, 0, 225), App.Rotation())
mirrored2 = body.newObject("PartDesign::Mirrored", "Mirrored001")
mirrored2.Originals = [pocket4]
mirrored2.MirrorPlane = (datumplane2, [""])
body.Tip = mirrored2

sketch6 = body.newObject("Sketcher::SketchObject", "Sketch005")
sketch6.AttachmentSupport = (doc.getObject("XY_Plane"), [""])
sketch6.MapMode = "FlatFace"
sketch6.AttachmentOffset = App.Placement(App.Vector(0, 0, 5), App.Rotation())
sketch6.addGeometry([
    Part.Circle(App.Vector(126.148115, 19, 0), App.Vector(0, 0, 1), 2),
    Part.Circle(App.Vector(128.12196, -19, 0), App.Vector(0, 0, 1), 2),
], False)
sketch6.addConstraint([
    Sketcher.Constraint("Equal", 0, 1),
    Sketcher.Constraint("Diameter", 0, Q("4 mm")),
    Sketcher.Constraint("DistanceY", -1, 1, 0, 3, Q("19 mm")),
    Sketcher.Constraint("DistanceY", 1, 3, -1, 1, Q("19 mm")),
    Sketcher.Constraint("DistanceX", -1, 1, 1, 3, Q("128.12196 mm")),
    Sketcher.Constraint("DistanceX", -1, 1, 0, 3, Q("126.148115 mm")),
])
pocket5 = body.newObject("PartDesign::Pocket", "Pocket004")
pocket5.Profile = sketch6
pocket5.Length = 10
doc.recompute()

datumplane3 = body.newObject("PartDesign::Plane", "DatumPlane002")
datumplane3.AttachmentSupport = (doc.getObject("YZ_Plane"), [""])
datumplane3.MapMode = "FlatFace"
datumplane3.AttachmentOffset = App.Placement(App.Vector(0, 0, 225), App.Rotation())
mirrored3 = body.newObject("PartDesign::Mirrored", "Mirrored002")
mirrored3.Originals = [pocket5]
mirrored3.MirrorPlane = (datumplane3, [""])
body.Tip = mirrored3

sketch7 = body.newObject("Sketcher::SketchObject", "Sketch006")
sketch7.AttachmentSupport = (doc.getObject("XZ_Plane"), [""])
sketch7.MapMode = "FlatFace"
sketch7.AttachmentOffset = App.Placement(App.Vector(0, 0, -25), App.Rotation())
add_polygon(sketch7, [(210, 0), (210, 5), (240, 5), (240, 0)])
sketch7.addConstraint([
    Sketcher.Constraint("Vertical", 0),
    Sketcher.Constraint("Horizontal", 1),
    Sketcher.Constraint("Vertical", 2),
    Sketcher.Constraint("Horizontal", 3),
    Sketcher.Constraint("PointOnObject", 2, 2, -1),
    Sketcher.Constraint("DistanceX", 1, 1, 1, 2, Q("30 mm")),
    Sketcher.Constraint("DistanceY", 0, 1, 0, 2, Q("5 mm")),
    Sketcher.Constraint("DistanceX", -1, 1, 0, 2, Q("210 mm")),
])
pad2 = body.newObject("PartDesign::Pad", "Pad001")
pad2.Profile = sketch7
pad2.Length = 5
pad2.Reversed = True

sketch8 = body.newObject("Sketcher::SketchObject", "Sketch007")
sketch8.AttachmentSupport = (doc.getObject("XZ_Plane"), [""])
sketch8.MapMode = "FlatFace"
sketch8.AttachmentOffset = App.Placement(App.Vector(0, 0, 25), App.Rotation())
add_polygon(sketch8, [(210.722779, 5), (210.722779, 0), (239.277221, 0), (239.277221, 5)])
sketch8.addConstraint([
    Sketcher.Constraint("Vertical", 0),
    Sketcher.Constraint("Horizontal", 1),
    Sketcher.Constraint("Vertical", 2),
    Sketcher.Constraint("Horizontal", 3),
    Sketcher.Constraint("PointOnObject", 0, 2, -1),
    Sketcher.Constraint("DistanceY", 0, 2, 0, 1, Q("5 mm")),
    Sketcher.Constraint("DistanceX", 1, 1, 1, 2, Q("28.554441 mm")),
    Sketcher.Constraint("DistanceX", -1, 1, 0, 2, Q("210.722779 mm")),
])
pad3 = body.newObject("PartDesign::Pad", "Pad002")
pad3.Profile = sketch8
pad3.Length = 5

doc.recompute()
